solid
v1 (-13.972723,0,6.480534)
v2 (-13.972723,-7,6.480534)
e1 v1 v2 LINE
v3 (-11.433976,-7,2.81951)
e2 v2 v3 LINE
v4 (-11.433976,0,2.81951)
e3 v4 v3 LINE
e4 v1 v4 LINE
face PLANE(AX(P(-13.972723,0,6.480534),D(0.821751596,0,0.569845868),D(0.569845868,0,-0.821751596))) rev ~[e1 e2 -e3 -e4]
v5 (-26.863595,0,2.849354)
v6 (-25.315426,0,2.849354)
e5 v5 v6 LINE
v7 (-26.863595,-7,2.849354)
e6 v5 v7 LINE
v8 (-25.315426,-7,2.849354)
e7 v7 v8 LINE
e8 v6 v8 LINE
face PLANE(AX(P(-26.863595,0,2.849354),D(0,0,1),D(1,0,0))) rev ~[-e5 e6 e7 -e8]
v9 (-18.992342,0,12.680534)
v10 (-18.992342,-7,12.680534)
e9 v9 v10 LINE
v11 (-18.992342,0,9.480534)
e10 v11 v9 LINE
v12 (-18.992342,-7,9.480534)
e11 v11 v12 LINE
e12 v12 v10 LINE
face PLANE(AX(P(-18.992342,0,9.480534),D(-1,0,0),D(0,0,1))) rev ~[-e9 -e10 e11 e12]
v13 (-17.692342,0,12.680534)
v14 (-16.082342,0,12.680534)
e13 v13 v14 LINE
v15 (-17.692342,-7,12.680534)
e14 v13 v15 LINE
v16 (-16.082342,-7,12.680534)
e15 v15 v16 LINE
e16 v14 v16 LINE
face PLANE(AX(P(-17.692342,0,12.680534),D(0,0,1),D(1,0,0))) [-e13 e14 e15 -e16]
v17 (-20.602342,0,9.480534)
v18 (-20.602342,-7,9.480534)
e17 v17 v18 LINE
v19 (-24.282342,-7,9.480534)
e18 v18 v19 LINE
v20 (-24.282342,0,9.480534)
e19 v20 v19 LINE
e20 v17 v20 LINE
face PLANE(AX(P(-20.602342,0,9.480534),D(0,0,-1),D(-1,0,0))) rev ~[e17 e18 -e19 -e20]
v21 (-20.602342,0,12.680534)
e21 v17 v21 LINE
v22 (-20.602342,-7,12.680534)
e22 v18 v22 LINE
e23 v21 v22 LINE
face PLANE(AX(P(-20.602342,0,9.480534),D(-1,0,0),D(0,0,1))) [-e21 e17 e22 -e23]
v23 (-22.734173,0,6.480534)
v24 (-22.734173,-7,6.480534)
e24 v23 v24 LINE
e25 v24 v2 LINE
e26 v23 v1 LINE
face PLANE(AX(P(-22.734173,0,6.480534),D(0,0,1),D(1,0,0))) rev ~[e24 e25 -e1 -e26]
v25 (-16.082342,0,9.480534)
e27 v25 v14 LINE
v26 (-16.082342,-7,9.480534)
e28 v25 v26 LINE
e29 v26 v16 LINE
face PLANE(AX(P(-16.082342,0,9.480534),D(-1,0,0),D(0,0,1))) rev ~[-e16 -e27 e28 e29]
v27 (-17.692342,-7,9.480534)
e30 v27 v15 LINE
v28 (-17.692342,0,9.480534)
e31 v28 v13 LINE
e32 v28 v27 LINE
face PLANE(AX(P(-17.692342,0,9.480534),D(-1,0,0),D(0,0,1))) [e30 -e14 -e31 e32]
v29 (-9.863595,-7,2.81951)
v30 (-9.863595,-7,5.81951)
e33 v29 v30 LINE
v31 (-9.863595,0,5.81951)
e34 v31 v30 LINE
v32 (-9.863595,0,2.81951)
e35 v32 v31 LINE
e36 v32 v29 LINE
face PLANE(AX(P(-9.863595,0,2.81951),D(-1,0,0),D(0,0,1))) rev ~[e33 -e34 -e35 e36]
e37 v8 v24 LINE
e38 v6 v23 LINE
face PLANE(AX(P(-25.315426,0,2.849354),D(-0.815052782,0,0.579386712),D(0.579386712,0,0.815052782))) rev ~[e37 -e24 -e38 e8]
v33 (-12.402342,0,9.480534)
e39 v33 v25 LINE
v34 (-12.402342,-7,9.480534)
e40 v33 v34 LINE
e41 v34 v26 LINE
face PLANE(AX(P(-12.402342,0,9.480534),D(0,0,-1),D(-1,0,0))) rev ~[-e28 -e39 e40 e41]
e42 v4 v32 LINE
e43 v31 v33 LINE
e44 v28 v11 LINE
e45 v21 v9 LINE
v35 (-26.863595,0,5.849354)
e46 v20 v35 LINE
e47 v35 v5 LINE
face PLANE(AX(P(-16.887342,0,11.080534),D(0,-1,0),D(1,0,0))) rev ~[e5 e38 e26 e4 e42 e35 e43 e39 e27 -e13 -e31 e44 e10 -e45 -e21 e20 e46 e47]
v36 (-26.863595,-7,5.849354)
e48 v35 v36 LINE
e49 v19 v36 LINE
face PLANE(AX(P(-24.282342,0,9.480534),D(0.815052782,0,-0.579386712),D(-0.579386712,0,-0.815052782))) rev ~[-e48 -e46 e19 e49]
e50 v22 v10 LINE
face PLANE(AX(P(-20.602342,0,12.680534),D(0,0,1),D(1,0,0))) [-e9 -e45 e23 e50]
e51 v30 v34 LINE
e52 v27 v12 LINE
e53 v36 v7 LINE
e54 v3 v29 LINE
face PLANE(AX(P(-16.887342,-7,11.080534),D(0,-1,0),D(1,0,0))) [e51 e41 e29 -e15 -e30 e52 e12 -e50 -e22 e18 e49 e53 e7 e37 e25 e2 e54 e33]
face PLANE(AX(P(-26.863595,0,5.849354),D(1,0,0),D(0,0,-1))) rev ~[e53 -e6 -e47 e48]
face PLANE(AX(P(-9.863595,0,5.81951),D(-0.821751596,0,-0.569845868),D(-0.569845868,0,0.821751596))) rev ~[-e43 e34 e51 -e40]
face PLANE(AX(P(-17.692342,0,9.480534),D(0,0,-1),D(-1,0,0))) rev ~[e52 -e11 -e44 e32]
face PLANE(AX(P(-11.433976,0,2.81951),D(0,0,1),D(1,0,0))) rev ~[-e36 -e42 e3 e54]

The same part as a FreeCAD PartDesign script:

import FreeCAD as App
import Part
import Sketcher
Q = App.Units.Quantity


def add_polygon(sketch, points):
    """Adds a closed chain of lines whose ends are joined by coincident constraints."""
    first, n = sketch.GeometryCount, len(points)
    for a, b in zip(points, points[1:] + points[:1]):
        sketch.addGeometry(Part.LineSegment(App.Vector(*a, 0), App.Vector(*b, 0)), False)
    for i in range(n):
        sketch.addConstraint(Sketcher.Constraint("Coincident", first + i, 2, first + (i + 1) % n, 1))

doc = App.newDocument("Part")
params = doc.addObject("Spreadsheet::Sheet", "Params")
for row, (alias, value) in enumerate([
    ("sketch1_height", "3 mm"),
    ("sketch1_width", "1.3 mm"),
    ("sketch1_height2", "3.2 mm"),
    ("sketch1_width2", "1.61 mm"),
    ("sketch1_width3", "3.68 mm"),
    ("pad1_length", "7 mm"),
], start=1):
    params.set(f"A{row}", alias)
    params.set(f"B{row}", "=" + value)
    params.setAlias(f"B{row}", alias)

body = doc.addObject("PartDesign::Body", "Body")

sketch1 = body.newObject("Sketcher::SketchObject", "Sketch")
sketch1.AttachmentSupport = (doc.getObject("XZ_Plane"), [""])
sketch1.MapMode = "FlatFace"
add_polygon(sketch1, [(-17.692342, 12.680534), (-17.692342, 9.480534), (-18.992342, 9.480534), (-18.992342, 12.680534), (-20.602342, 12.680534), (-20.602342, 9.480534), (-24.282342, 9.480534), (-26.863595, 5.849354), (-26.863595, 2.849354), (-25.315426, 2.849354), (-22.734173, 6.480534), (-13.972723, 6.480534), (-11.433976, 2.81951), (-9.863595, 2.81951), (-9.863595, 5.81951), (-12.402342, 9.480534), (-16.082342, 9.480534), (-16.082342, 12.680534)])
sketch1.addConstraint([
    Sketcher.Constraint("Vertical", 0),
    Sketcher.Constraint("Horizontal", 1),
    Sketcher.Constraint("Vertical", 2),
    Sketcher.Constraint("Horizontal", 3),
    Sketcher.Constraint("Vertical", 4),
    Sketcher.Constraint("Horizontal", 5),
    Sketcher.Constraint("Vertical", 7),
    Sketcher.Constraint("Horizontal", 8),
    Sketcher.Constraint("Horizontal", 10),
    Sketcher.Constraint("Horizontal", 12),
    Sketcher.Constraint("Vertical", 13),
    Sketcher.Constraint("Horizontal", 15),
    Sketcher.Constraint("Vertical", 16),
    Sketcher.Constraint("Horizontal", 17),
    Sketcher.Constraint("Parallel", 6, 9),
    Sketcher.Constraint("Parallel", 11, 14),
    Sketcher.Constraint("Horizontal", 1, 2, 4, 2),
    Sketcher.Constraint("Horizontal", 5, 2, 14, 2),
    Sketcher.Constraint("Horizontal", 3, 2, 16, 2),
    Sketcher.Constraint("Equal", 5, 15),
    Sketcher.Constraint("Equal", 3, 17),
    Sketcher.Constraint("Equal", 7, 13),
    Sketcher.Constraint("Equal", 6, 9),
    Sketcher.Constraint("Equal", 9, 11),
    Sketcher.Constraint("DistanceY", 7, 2, 7, 1, Q("3 mm")),
    Sketcher.Constraint("DistanceX", 1, 2, 1, 1, Q("1.3 mm")),
    Sketcher.Constraint("DistanceY", 0, 2, 0, 1, Q("3.2 mm")),
    Sketcher.Constraint("DistanceX", 3, 2, 3, 1, Q("1.61 mm")),
    Sketcher.Constraint("DistanceX", 5, 2, 5, 1, Q("3.68 mm")),
    Sketcher.Constraint("DistanceX", 8, 1, 8, 2, Q("1.548169 mm")),
    Sketcher.Constraint("DistanceX", 10, 1, 10, 2, Q("8.76145 mm")),
    Sketcher.Constraint("DistanceX", 0, 2, -1, 1, Q("17.692342 mm")),
    Sketcher.Constraint("DistanceY", -1, 1, 11, 2, Q("2.81951 mm")),
    Sketcher.Constraint("DistanceY", 6, 2, 5, 2, Q("3.63118 mm")),
    Sketcher.Constraint("Distance", 6, Q("4.455147 mm")),
    Sketcher.Constraint("DistanceY", -1, 1, 0, 2, Q("9.480534 mm")),
])
sketch1.setExpression("Constraints[42]", "Params.sketch1_height")
sketch1.setExpression("Constraints[43]", "Params.sketch1_width")
sketch1.setExpression("Constraints[44]", "Params.sketch1_height2")
sketch1.setExpression("Constraints[45]", "Params.sketch1_width2")
sketch1.setExpression("Constraints[46]", "Params.sketch1_width3")
pad1 = body.newObject("PartDesign::Pad", "Pad")
pad1.Profile = sketch1
pad1.setExpression("Length", "Params.pad1_length")

doc.recompute()
